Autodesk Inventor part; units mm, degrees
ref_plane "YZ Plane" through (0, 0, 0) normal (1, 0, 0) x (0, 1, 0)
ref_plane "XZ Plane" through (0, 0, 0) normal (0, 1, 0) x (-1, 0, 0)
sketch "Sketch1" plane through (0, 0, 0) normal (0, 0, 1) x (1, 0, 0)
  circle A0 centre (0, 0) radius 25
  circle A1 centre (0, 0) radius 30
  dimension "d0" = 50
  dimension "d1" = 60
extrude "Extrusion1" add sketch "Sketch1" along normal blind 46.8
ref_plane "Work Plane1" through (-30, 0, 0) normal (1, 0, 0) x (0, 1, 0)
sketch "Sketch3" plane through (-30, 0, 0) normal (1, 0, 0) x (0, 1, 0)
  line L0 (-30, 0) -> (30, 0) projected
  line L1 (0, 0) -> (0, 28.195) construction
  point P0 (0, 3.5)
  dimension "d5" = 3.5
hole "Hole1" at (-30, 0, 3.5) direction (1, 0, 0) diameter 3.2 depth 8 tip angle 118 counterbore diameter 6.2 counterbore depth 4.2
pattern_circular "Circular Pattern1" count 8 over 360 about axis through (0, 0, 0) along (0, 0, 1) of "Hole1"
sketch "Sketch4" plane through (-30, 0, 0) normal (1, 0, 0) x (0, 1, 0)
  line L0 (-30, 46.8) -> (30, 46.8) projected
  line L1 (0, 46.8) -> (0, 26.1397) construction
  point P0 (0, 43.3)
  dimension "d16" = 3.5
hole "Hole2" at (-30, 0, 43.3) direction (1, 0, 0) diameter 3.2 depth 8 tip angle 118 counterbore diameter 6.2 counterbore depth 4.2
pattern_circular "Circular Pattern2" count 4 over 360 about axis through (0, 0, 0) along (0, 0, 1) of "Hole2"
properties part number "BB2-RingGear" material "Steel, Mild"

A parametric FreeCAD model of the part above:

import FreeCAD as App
import Part
import Sketcher
from FreeCAD import Vector

doc = App.newDocument("Part")
body = doc.addObject("PartDesign::Body", "Body")

# Sketch on XY plane
sketch1 = body.newObject("Sketcher::SketchObject", "Sketch")
sketch1.AttachmentSupport = (doc.getObject("XY_Plane"), [""])
sketch1.MapMode = "FlatFace"
sketch1.addGeometry([
    Part.Circle(Vector(0, 0, 0), Vector(0, 0, 1), 30),
    Part.Circle(Vector(0, 0, 0), Vector(0, 0, 1), 25),
], False)
sketch1.addConstraint([
    Sketcher.Constraint("Coincident", 0, 3, -1, 1),
    Sketcher.Constraint("Coincident", 1, 3, -1, 1),
    Sketcher.Constraint("Diameter", 0, 60.0),
    Sketcher.Constraint("Diameter", 1, 50.0),
])
pad1 = body.newObject("PartDesign::Pad", "Pad")
pad1.Profile = sketch1
pad1.Length = 46.8

# Sketch on YZ plane
sketch2 = body.newObject("Sketcher::SketchObject", "Sketch001")
sketch2.AttachmentSupport = (doc.getObject("YZ_Plane"), [""])
sketch2.MapMode = "FlatFace"
sketch2.AttachmentOffset = App.Placement(Vector(0, 0, -30), App.Rotation())
sketch2.addGeometry(Part.Circle(Vector(0, 3.5, 0), Vector(0, 0, 1), 1.6), False)
sketch2.addConstraint([
    Sketcher.Constraint("PointOnObject", 0, 3, -2),
    Sketcher.Constraint("Diameter", 0, 3.2),
    Sketcher.Constraint("DistanceY", -1, 1, 0, 3, 3.5),
])
doc.recompute()
hole = body.newObject("PartDesign::Hole", "Hole")
hole.Profile = sketch2
hole.ThreadType = "None"
hole.Diameter = 3.2
hole.DepthType = "Dimension"
hole.Depth = 8
hole.DrillPoint = "Angled"
hole.DrillPointAngle = 118
hole.HoleCutType = "Counterbore"
hole.HoleCutDiameter = 6.2
hole.HoleCutDepth = 4.2
hole.Reversed = True
doc.recompute()

polarpattern = body.newObject("PartDesign::PolarPattern", "PolarPattern")
polarpattern.Originals = [hole]
polarpattern.Axis = (doc.getObject("Z_Axis"), [""])
polarpattern.Angle = 360
polarpattern.Occurrences = 8
body.Tip = polarpattern

# Sketch on YZ plane
sketch3 = body.newObject("Sketcher::SketchObject", "Sketch002")
sketch3.AttachmentSupport = (doc.getObject("YZ_Plane"), [""])
sketch3.MapMode = "FlatFace"
sketch3.AttachmentOffset = App.Placement(Vector(0, 0, -30), App.Rotation())
sketch3.addGeometry(Part.Circle(Vector(0, 43.3, 0), Vector(0, 0, 1), 1.6), False)
sketch3.addConstraint([
    Sketcher.Constraint("PointOnObject", 0, 3, -2),
    Sketcher.Constraint("Diameter", 0, 3.2),
    Sketcher.Constraint("DistanceY", -1, 1, 0, 3, 43.3),
])
doc.recompute()
hole2 = body.newObject("PartDesign::Hole", "Hole001")
hole2.Profile = sketch3
hole2.ThreadType = "None"
hole2.Diameter = 3.2
hole2.DepthType = "Dimension"
hole2.Depth = 8
hole2.DrillPoint = "Angled"
hole2.DrillPointAngle = 118
hole2.HoleCutType = "Counterbore"
hole2.HoleCutDiameter = 6.2
hole2.HoleCutDepth = 4.2
hole2.Reversed = True
doc.recompute()

polarpattern2 = body.newObject("PartDesign::PolarPattern", "PolarPattern001")
polarpattern2.Originals = [hole2]
polarpattern2.Axis = (doc.getObject("Z_Axis"), [""])
polarpattern2.Angle = 360
polarpattern2.Occurrences = 4
body.Tip = polarpattern2

doc.recompute()
